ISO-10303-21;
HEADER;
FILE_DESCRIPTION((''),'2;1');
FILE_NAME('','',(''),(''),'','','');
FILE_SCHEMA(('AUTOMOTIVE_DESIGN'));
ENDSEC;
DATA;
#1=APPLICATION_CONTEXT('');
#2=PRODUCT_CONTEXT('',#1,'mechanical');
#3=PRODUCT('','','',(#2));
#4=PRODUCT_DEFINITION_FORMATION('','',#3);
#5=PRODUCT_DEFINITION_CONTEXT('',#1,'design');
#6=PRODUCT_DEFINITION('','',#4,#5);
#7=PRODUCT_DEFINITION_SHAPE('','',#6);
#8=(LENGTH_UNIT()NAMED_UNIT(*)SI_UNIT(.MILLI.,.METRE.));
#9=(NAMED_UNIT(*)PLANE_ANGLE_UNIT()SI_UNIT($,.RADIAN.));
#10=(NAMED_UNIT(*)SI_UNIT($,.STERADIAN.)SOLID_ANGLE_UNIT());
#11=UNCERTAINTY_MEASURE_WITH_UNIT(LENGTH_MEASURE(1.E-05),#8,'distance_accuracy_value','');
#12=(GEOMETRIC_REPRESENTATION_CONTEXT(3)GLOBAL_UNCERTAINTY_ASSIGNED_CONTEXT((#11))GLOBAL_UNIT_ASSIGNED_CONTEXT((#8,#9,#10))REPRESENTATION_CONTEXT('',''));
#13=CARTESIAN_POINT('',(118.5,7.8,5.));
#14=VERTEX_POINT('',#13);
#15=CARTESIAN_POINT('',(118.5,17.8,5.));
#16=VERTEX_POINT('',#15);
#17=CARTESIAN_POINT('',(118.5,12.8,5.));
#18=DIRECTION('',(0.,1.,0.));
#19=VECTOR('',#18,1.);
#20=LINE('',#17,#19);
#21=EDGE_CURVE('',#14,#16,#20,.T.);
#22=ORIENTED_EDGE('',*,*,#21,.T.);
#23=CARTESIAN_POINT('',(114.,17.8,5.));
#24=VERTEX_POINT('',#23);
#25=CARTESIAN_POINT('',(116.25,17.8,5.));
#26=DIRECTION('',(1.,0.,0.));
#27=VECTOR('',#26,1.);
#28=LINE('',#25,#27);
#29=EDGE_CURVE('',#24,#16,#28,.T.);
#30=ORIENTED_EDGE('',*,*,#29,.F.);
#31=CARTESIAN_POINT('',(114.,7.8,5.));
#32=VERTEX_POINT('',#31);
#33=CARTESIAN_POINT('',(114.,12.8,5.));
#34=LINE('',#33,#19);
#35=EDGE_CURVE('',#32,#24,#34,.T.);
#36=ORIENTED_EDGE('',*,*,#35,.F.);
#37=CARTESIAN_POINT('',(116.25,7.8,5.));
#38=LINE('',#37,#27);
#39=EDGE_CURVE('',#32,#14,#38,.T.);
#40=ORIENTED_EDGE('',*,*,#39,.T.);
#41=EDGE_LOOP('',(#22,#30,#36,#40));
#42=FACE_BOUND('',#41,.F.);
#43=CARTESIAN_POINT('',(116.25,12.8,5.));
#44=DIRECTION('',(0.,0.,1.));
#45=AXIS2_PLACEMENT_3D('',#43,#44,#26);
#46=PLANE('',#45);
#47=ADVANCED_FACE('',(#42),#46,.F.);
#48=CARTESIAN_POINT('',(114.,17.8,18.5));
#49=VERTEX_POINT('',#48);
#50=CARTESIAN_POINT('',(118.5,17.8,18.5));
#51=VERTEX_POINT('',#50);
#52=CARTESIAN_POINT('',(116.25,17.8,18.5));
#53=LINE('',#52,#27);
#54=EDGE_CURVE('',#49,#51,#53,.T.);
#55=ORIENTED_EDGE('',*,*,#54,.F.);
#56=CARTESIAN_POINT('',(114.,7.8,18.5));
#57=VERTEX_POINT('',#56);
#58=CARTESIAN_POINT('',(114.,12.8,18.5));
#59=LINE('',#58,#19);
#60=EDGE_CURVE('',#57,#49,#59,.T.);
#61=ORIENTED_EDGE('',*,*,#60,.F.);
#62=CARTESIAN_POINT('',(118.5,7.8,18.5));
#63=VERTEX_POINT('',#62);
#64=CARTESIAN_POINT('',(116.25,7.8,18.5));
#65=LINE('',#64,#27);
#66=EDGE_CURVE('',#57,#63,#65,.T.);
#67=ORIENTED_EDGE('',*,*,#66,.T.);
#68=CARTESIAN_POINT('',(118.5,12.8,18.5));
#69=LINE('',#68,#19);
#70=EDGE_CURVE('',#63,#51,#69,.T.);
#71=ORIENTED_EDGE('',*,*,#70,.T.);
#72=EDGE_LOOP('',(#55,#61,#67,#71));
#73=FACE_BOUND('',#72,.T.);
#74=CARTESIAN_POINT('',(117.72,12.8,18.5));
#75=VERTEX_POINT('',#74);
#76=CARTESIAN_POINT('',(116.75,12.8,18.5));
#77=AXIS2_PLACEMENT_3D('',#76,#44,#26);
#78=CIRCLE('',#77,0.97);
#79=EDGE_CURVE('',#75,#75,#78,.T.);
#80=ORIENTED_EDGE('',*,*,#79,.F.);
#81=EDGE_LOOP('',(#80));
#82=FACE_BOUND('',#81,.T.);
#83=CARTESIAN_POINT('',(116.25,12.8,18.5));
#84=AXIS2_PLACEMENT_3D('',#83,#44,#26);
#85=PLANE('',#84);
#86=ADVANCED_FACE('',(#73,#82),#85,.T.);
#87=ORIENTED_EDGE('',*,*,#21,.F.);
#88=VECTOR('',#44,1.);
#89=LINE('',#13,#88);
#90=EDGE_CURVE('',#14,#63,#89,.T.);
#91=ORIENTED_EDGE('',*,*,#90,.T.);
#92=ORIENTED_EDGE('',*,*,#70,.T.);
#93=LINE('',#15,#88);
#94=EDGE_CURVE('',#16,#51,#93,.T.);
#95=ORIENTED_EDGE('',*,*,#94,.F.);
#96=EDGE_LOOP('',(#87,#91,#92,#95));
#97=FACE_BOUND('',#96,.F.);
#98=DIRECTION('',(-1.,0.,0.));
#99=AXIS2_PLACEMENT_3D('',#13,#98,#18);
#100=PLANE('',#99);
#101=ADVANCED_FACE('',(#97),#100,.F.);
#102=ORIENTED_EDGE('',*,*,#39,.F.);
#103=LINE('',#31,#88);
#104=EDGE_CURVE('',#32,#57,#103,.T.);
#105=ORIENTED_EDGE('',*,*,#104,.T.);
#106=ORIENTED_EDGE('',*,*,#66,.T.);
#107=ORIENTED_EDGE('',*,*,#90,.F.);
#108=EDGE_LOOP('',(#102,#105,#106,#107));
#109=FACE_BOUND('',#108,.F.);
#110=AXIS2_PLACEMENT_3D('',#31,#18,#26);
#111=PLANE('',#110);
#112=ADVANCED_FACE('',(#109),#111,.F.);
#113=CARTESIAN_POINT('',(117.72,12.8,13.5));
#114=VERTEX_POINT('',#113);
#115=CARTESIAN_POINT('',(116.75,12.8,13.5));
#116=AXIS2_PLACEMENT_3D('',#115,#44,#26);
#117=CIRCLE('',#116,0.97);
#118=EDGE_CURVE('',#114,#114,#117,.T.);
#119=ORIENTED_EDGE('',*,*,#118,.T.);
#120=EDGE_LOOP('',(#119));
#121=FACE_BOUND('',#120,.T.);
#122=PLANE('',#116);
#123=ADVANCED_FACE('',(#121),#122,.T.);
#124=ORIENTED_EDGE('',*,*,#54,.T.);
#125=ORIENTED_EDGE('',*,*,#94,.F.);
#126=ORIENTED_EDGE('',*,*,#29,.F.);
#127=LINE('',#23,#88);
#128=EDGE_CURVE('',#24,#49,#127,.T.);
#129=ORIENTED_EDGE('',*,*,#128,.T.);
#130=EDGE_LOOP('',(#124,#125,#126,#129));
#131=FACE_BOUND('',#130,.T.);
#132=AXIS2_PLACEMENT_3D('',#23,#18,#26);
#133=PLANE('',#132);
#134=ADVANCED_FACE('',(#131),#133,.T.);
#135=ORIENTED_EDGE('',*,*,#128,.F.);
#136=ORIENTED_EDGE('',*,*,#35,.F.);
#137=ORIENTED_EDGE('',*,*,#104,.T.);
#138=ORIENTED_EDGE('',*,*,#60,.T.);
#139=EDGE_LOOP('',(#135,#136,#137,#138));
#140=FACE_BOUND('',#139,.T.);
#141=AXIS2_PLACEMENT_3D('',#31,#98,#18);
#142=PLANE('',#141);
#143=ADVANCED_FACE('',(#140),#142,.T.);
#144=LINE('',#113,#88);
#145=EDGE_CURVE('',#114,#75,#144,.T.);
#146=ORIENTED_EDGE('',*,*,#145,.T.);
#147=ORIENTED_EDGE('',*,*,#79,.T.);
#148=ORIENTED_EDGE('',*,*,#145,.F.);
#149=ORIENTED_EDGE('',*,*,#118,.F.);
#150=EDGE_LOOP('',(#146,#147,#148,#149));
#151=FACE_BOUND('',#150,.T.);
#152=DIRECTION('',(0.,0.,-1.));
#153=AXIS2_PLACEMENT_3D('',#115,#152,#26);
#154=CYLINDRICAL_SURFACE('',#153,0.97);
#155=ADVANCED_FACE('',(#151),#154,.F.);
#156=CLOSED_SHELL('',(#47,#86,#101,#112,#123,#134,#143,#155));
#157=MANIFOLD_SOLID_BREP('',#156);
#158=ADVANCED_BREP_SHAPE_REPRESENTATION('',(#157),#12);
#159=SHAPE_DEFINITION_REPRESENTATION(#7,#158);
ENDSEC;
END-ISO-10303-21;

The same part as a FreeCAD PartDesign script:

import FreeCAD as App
import Part
import Sketcher
from FreeCAD import Vector
Q = App.Units.Quantity


def add_polygon(sketch, points):
    """Adds a closed chain of lines whose ends are joined by coincident constraints."""
    first, n = sketch.GeometryCount, len(points)
    for a, b in zip(points, points[1:] + points[:1]):
        sketch.addGeometry(Part.LineSegment(App.Vector(*a, 0), App.Vector(*b, 0)), False)
    for i in range(n):
        sketch.addConstraint(Sketcher.Constraint("Coincident", first + i, 2, first + (i + 1) % n, 1))

doc = App.newDocument("Part")
body = doc.addObject("PartDesign::Body", "Body")

sketch1 = body.newObject("Sketcher::SketchObject", "Sketch")
sketch1.AttachmentSupport = (doc.getObject("XY_Plane"), [""])
sketch1.MapMode = "FlatFace"
sketch1.AttachmentOffset = App.Placement(Vector(0, 0, 13.5), App.Rotation())
sketch1.addGeometry(Part.Circle(Vector(116.75, 12.8, 0), Vector(0, 0, 1), 0.97), False)
sketch1.addConstraint([
    Sketcher.Constraint("Diameter", 0, Q("1.94 mm")),
    Sketcher.Constraint("DistanceY", -1, 1, 0, 3, Q("12.8 mm")),
    Sketcher.Constraint("DistanceX", -1, 1, 0, 3, Q("116.75 mm")),
])
pad1 = body.newObject("PartDesign::Pad", "Pad")
pad1.Profile = sketch1
pad1.Length = 5
body2 = doc.addObject("PartDesign::Body", "Body001")

sketch2 = body2.newObject("Sketcher::SketchObject", "Sketch001")
sketch2.AttachmentSupport = (doc.getObject("XY_Plane001"), [""])
sketch2.MapMode = "FlatFace"
sketch2.AttachmentOffset = App.Placement(Vector(0, 0, 5), App.Rotation())
add_polygon(sketch2, [(114, 17.8), (114, 7.8), (118.5, 7.8), (118.5, 17.8)])
sketch2.addConstraint([
    Sketcher.Constraint("Vertical", 0),
    Sketcher.Constraint("Horizontal", 1),
    Sketcher.Constraint("Vertical", 2),
    Sketcher.Constraint("Horizontal", 3),
    Sketcher.Constraint("DistanceY", 0, 2, 0, 1, Q("10 mm")),
    Sketcher.Constraint("DistanceX", 1, 1, 1, 2, Q("4.5 mm")),
    Sketcher.Constraint("DistanceX", -1, 1, 0, 2, Q("114 mm")),
    Sketcher.Constraint("DistanceY", -1, 1, 0, 2, Q("7.8 mm")),
])
pad2 = body2.newObject("PartDesign::Pad", "Pad001")
pad2.Profile = sketch2
pad2.Length = 13.5
doc.recompute()

boolean = body2.newObject("PartDesign::Boolean", "Boolean")
boolean.Type = "Cut"
boolean.addObjects([body])

doc.recompute()
